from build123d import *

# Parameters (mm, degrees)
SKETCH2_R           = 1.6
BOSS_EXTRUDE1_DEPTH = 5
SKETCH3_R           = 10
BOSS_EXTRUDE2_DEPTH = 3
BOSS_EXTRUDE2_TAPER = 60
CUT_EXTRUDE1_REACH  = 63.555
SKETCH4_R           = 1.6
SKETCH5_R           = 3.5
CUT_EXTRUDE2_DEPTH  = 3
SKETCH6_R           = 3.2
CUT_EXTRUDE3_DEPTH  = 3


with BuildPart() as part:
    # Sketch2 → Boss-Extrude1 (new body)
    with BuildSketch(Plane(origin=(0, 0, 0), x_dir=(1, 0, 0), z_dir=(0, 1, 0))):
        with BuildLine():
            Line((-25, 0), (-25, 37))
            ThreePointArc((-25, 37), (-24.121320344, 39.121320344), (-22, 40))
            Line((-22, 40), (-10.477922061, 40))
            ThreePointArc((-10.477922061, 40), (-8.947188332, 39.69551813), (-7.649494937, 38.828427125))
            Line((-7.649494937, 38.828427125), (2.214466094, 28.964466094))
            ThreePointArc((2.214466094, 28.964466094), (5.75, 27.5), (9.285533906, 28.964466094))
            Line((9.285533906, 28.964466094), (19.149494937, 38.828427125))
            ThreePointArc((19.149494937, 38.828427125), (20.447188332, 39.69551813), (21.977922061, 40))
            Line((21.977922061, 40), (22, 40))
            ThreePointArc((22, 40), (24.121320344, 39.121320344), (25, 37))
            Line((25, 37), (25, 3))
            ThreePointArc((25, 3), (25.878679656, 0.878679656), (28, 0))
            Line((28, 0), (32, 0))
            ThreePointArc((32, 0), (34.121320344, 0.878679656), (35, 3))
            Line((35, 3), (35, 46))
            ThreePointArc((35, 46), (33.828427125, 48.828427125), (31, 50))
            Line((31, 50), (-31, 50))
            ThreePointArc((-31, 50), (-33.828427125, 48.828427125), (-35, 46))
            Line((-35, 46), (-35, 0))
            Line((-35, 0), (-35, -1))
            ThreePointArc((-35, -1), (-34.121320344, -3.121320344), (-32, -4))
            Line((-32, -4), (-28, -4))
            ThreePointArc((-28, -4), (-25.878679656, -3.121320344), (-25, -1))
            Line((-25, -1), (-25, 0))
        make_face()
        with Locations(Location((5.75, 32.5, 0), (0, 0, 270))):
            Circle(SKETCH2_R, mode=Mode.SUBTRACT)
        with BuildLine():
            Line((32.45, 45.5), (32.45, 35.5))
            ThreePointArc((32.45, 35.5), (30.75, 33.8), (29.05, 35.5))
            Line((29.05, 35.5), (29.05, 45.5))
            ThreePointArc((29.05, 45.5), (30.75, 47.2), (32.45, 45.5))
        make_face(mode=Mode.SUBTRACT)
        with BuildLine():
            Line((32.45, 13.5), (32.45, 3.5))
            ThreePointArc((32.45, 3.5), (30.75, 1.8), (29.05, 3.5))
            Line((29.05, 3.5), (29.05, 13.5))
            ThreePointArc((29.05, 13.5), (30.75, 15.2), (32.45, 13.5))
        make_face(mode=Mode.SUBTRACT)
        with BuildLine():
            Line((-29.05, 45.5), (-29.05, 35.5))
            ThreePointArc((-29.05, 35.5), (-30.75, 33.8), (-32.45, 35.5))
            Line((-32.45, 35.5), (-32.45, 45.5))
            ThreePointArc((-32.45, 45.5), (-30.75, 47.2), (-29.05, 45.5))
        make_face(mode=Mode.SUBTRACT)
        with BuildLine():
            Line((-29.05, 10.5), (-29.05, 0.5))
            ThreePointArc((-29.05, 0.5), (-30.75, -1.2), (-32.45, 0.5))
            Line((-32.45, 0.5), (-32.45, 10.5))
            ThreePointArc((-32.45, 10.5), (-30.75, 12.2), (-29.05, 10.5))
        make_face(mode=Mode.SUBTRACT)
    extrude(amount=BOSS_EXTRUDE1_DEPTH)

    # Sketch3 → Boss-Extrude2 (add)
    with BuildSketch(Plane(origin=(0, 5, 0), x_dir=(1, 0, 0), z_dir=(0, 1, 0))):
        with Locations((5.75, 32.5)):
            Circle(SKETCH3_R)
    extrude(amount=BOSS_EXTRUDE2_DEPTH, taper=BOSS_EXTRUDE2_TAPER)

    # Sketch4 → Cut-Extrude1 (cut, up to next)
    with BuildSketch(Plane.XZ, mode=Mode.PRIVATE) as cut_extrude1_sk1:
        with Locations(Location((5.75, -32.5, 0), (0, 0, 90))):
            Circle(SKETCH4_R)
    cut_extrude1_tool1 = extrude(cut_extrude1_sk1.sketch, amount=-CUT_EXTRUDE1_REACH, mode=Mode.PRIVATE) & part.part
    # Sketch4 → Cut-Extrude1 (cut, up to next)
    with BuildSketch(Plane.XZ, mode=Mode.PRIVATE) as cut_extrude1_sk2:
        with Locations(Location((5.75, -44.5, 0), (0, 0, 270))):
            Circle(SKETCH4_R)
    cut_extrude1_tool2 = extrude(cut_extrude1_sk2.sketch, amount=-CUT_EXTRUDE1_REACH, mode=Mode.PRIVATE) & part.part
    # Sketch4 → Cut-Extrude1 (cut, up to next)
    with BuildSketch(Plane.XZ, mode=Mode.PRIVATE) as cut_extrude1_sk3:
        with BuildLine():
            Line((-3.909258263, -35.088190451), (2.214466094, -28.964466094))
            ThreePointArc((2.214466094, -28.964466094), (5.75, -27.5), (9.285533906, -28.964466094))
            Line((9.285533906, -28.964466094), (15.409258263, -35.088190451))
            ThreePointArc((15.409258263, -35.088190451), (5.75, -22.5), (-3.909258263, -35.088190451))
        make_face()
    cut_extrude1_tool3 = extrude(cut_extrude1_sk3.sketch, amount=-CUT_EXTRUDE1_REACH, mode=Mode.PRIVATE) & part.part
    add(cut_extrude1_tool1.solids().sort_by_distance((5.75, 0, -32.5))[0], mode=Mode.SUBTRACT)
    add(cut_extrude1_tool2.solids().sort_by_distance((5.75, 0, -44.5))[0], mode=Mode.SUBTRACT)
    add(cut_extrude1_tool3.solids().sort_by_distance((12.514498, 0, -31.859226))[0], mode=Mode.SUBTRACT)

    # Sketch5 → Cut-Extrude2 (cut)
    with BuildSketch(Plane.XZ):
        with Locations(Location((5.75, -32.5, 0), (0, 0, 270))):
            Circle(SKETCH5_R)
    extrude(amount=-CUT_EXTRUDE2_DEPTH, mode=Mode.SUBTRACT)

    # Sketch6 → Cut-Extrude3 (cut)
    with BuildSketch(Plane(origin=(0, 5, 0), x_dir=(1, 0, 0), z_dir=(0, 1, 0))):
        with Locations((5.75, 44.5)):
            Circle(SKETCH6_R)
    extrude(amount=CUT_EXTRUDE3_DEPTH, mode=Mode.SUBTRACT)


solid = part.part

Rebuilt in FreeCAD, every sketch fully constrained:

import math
import FreeCAD as App
import Part
import Sketcher

V = App.Vector

doc = App.newDocument("Part")
body = doc.addObject("PartDesign::Body", "Body")

sketch1 = doc.addObject("Sketcher::SketchObject", "Sketch")
body.addObject(sketch1)
sketch1.AttachmentSupport = (doc.XZ_Plane, [""])
sketch1.MapMode = "FlatFace"
sketch1.addGeometry(Part.ArcOfCircle(Part.Circle(V(-22, -37, 0), V(0, 0, 1), 3), math.radians(180), math.radians(270)), False)
sketch1.addGeometry(Part.LineSegment(V(-22, -40, 0), V(-10.478, -40, 0)), False)
sketch1.addGeometry(Part.ArcOfCircle(Part.Circle(V(-10.478, -36, 0), V(0, 0, 1), 4), math.radians(-90), math.radians(-45)), False)
sketch1.addGeometry(Part.LineSegment(V(-7.649, -38.828, 0), V(2.214, -28.964, 0)), False)
sketch1.addGeometry(Part.ArcOfCircle(Part.Circle(V(5.75, -32.5, 0), V(0, 0, 1), 5), math.radians(45), math.radians(135)), False)
sketch1.addGeometry(Part.LineSegment(V(9.286, -28.964, 0), V(19.149, -38.828, 0)), False)
sketch1.addGeometry(Part.ArcOfCircle(Part.Circle(V(21.978, -36, 0), V(0, 0, 1), 4), math.radians(-135), math.radians(-90)), False)
sketch1.addGeometry(Part.LineSegment(V(21.978, -40, 0), V(22, -40, 0)), False)
sketch1.addGeometry(Part.ArcOfCircle(Part.Circle(V(22, -37, 0), V(0, 0, 1), 3), math.radians(-90), math.radians(0)), False)
sketch1.addGeometry(Part.LineSegment(V(25, -37, 0), V(25, -3, 0)), False)
sketch1.addGeometry(Part.ArcOfCircle(Part.Circle(V(28, -3, 0), V(0, 0, 1), 3), math.radians(90), math.radians(180)), False)
sketch1.addGeometry(Part.LineSegment(V(28, 0, 0), V(32, 0, 0)), False)
sketch1.addGeometry(Part.ArcOfCircle(Part.Circle(V(32, -3, 0), V(0, 0, 1), 3), math.radians(0), math.radians(90)), False)
sketch1.addGeometry(Part.LineSegment(V(35, -3, 0), V(35, -46, 0)), False)
sketch1.addGeometry(Part.ArcOfCircle(Part.Circle(V(31, -46, 0), V(0, 0, 1), 4), math.radians(-90), math.radians(0)), False)
sketch1.addGeometry(Part.LineSegment(V(31, -50, 0), V(-31, -50, 0)), False)
sketch1.addGeometry(Part.ArcOfCircle(Part.Circle(V(-31, -46, 0), V(0, 0, 1), 4), math.radians(180), math.radians(270)), False)
sketch1.addGeometry(Part.LineSegment(V(-35, -46, 0), V(-35, 1, 0)), False)
sketch1.addGeometry(Part.ArcOfCircle(Part.Circle(V(-32, 1, 0), V(0, 0, 1), 3), math.radians(90), math.radians(180)), False)
sketch1.addGeometry(Part.LineSegment(V(-32, 4, 0), V(-28, 4, 0)), False)
sketch1.addGeometry(Part.ArcOfCircle(Part.Circle(V(-28, 1, 0), V(0, 0, 1), 3), math.radians(0), math.radians(90)), False)
sketch1.addGeometry(Part.LineSegment(V(-25, 1, 0), V(-25, -37, 0)), False)
sketch1.addGeometry(Part.ArcOfCircle(Part.Circle(V(-30.75, -10.5, 0), V(0, 0, 1), 1.7), math.radians(180), math.radians(360)), False)
sketch1.addGeometry(Part.LineSegment(V(-29.05, -10.5, 0), V(-29.05, -0.5, 0)), False)
sketch1.addGeometry(Part.ArcOfCircle(Part.Circle(V(-30.75, -0.5, 0), V(0, 0, 1), 1.7), math.radians(0), math.radians(180)), False)
sketch1.addGeometry(Part.LineSegment(V(-32.45, -0.5, 0), V(-32.45, -10.5, 0)), False)
sketch1.addGeometry(Part.ArcOfCircle(Part.Circle(V(30.75, -13.5, 0), V(0, 0, 1), 1.7), math.radians(180), math.radians(360)), False)
sketch1.addGeometry(Part.LineSegment(V(32.45, -13.5, 0), V(32.45, -3.5, 0)), False)
sketch1.addGeometry(Part.ArcOfCircle(Part.Circle(V(30.75, -3.5, 0), V(0, 0, 1), 1.7), math.radians(0), math.radians(180)), False)
sketch1.addGeometry(Part.LineSegment(V(29.05, -3.5, 0), V(29.05, -13.5, 0)), False)
sketch1.addGeometry(Part.ArcOfCircle(Part.Circle(V(-30.75, -45.5, 0), V(0, 0, 1), 1.7), math.radians(180), math.radians(360)), False)
sketch1.addGeometry(Part.LineSegment(V(-29.05, -45.5, 0), V(-29.05, -35.5, 0)), False)
sketch1.addGeometry(Part.ArcOfCircle(Part.Circle(V(-30.75, -35.5, 0), V(0, 0, 1), 1.7), math.radians(0), math.radians(180)), False)
sketch1.addGeometry(Part.LineSegment(V(-32.45, -35.5, 0), V(-32.45, -45.5, 0)), False)
sketch1.addGeometry(Part.Circle(V(5.75, -32.5, 0), V(0, 0, 1), 1.6), False)
sketch1.addGeometry(Part.ArcOfCircle(Part.Circle(V(30.75, -45.5, 0), V(0, 0, 1), 1.7), math.radians(180), math.radians(360)), False)
sketch1.addGeometry(Part.LineSegment(V(32.45, -45.5, 0), V(32.45, -35.5, 0)), False)
sketch1.addGeometry(Part.ArcOfCircle(Part.Circle(V(30.75, -35.5, 0), V(0, 0, 1), 1.7), math.radians(0), math.radians(180)), False)
sketch1.addGeometry(Part.LineSegment(V(29.05, -35.5, 0), V(29.05, -45.5, 0)), False)
sketch1.addConstraint(Sketcher.Constraint("Tangent", 0, 2, 1, 1))
sketch1.addConstraint(Sketcher.Constraint("Tangent", 1, 2, 2, 1))
sketch1.addConstraint(Sketcher.Constraint("Tangent", 2, 2, 3, 1))
sketch1.addConstraint(Sketcher.Constraint("Tangent", 3, 2, 4, 2))
sketch1.addConstraint(Sketcher.Constraint("Tangent", 4, 1, 5, 1))
sketch1.addConstraint(Sketcher.Constraint("Tangent", 5, 2, 6, 1))
sketch1.addConstraint(Sketcher.Constraint("Tangent", 6, 2, 7, 1))
sketch1.addConstraint(Sketcher.Constraint("Tangent", 7, 2, 8, 1))
sketch1.addConstraint(Sketcher.Constraint("Tangent", 8, 2, 9, 1))
sketch1.addConstraint(Sketcher.Constraint("Tangent", 9, 2, 10, 2))
sketch1.addConstraint(Sketcher.Constraint("Tangent", 10, 1, 11, 1))
sketch1.addConstraint(Sketcher.Constraint("Tangent", 11, 2, 12, 2))
sketch1.addConstraint(Sketcher.Constraint("Tangent", 12, 1, 13, 1))
sketch1.addConstraint(Sketcher.Constraint("Tangent", 13, 2, 14, 2))
sketch1.addConstraint(Sketcher.Constraint("Tangent", 14, 1, 15, 1))
sketch1.addConstraint(Sketcher.Constraint("Tangent", 15, 2, 16, 2))
sketch1.addConstraint(Sketcher.Constraint("Tangent", 16, 1, 17, 1))
sketch1.addConstraint(Sketcher.Constraint("Tangent", 17, 2, 18, 2))
sketch1.addConstraint(Sketcher.Constraint("Tangent", 18, 1, 19, 1))
sketch1.addConstraint(Sketcher.Constraint("Tangent", 19, 2, 20, 2))
sketch1.addConstraint(Sketcher.Constraint("Tangent", 20, 1, 21, 1))
sketch1.addConstraint(Sketcher.Constraint("Tangent", 21, 2, 0, 1))
sketch1.addConstraint(Sketcher.Constraint("Tangent", 22, 2, 23, 1))
sketch1.addConstraint(Sketcher.Constraint("Tangent", 23, 2, 24, 1))
sketch1.addConstraint(Sketcher.Constraint("Tangent", 24, 2, 25, 1))
sketch1.addConstraint(Sketcher.Constraint("Tangent", 25, 2, 22, 1))
sketch1.addConstraint(Sketcher.Constraint("Tangent", 26, 2, 27, 1))
sketch1.addConstraint(Sketcher.Constraint("Tangent", 27, 2, 28, 1))
sketch1.addConstraint(Sketcher.Constraint("Tangent", 28, 2, 29, 1))
sketch1.addConstraint(Sketcher.Constraint("Tangent", 29, 2, 26, 1))
sketch1.addConstraint(Sketcher.Constraint("Tangent", 30, 2, 31, 1))
sketch1.addConstraint(Sketcher.Constraint("Tangent", 31, 2, 32, 1))
sketch1.addConstraint(Sketcher.Constraint("Tangent", 32, 2, 33, 1))
sketch1.addConstraint(Sketcher.Constraint("Tangent", 33, 2, 30, 1))
sketch1.addConstraint(Sketcher.Constraint("Tangent", 35, 2, 36, 1))
sketch1.addConstraint(Sketcher.Constraint("Tangent", 36, 2, 37, 1))
sketch1.addConstraint(Sketcher.Constraint("Tangent", 37, 2, 38, 1))
sketch1.addConstraint(Sketcher.Constraint("Tangent", 38, 2, 35, 1))
sketch1.addConstraint(Sketcher.Constraint("Horizontal", 1))
sketch1.addConstraint(Sketcher.Constraint("Horizontal", 7))
sketch1.addConstraint(Sketcher.Constraint("Vertical", 9))
sketch1.addConstraint(Sketcher.Constraint("Horizontal", 11))
sketch1.addConstraint(Sketcher.Constraint("Vertical", 13))
sketch1.addConstraint(Sketcher.Constraint("Horizontal", 15))
sketch1.addConstraint(Sketcher.Constraint("Vertical", 17))
sketch1.addConstraint(Sketcher.Constraint("Horizontal", 19))
sketch1.addConstraint(Sketcher.Constraint("Vertical", 21))
sketch1.addConstraint(Sketcher.Constraint("Vertical", 23))
sketch1.addConstraint(Sketcher.Constraint("Vertical", 25))
sketch1.addConstraint(Sketcher.Constraint("Vertical", 27))
sketch1.addConstraint(Sketcher.Constraint("Vertical", 29))
sketch1.addConstraint(Sketcher.Constraint("Vertical", 31))
sketch1.addConstraint(Sketcher.Constraint("Vertical", 33))
sketch1.addConstraint(Sketcher.Constraint("Vertical", 36))
sketch1.addConstraint(Sketcher.Constraint("Vertical", 38))
sketch1.addConstraint(Sketcher.Constraint("Coincident", 34, 3, 4, 3))
sketch1.addConstraint(Sketcher.Constraint("Equal", 2, 6))
sketch1.addConstraint(Sketcher.Constraint("Equal", 0, 8))
sketch1.addConstraint(Sketcher.Constraint("Equal", 8, 10))
sketch1.addConstraint(Sketcher.Constraint("Equal", 10, 12))
sketch1.addConstraint(Sketcher.Constraint("Equal", 6, 14))
sketch1.addConstraint(Sketcher.Constraint("Equal", 14, 16))
sketch1.addConstraint(Sketcher.Constraint("Equal", 12, 18))
sketch1.addConstraint(Sketcher.Constraint("Equal", 18, 20))
sketch1.addConstraint(Sketcher.Constraint("Equal", 24, 26))
sketch1.addConstraint(Sketcher.Constraint("Equal", 28, 30))
sketch1.addConstraint(Sketcher.Constraint("Equal", 32, 35))
sketch1.addConstraint(Sketcher.Constraint("Symmetric", 0, 3, 8, 3, -2))
sketch1.addConstraint(Sketcher.Constraint("Symmetric", 30, 3, 35, 3, -2))
sketch1.addConstraint(Sketcher.Constraint("PointOnObject", 10, 1, -1))
sketch1.addConstraint(Sketcher.Constraint("Perpendicular", 3, 5))
sketch1.addConstraint(Sketcher.Constraint("Horizontal", 32, 3, 37, 3))
sketch1.addConstraint(Sketcher.Constraint("Horizontal", 3, 2, 4, 1))
sketch1.addConstraint(Sketcher.Constraint("Vertical", 24, 3, 30, 3))
sketch1.addConstraint(Sketcher.Constraint("Vertical", 28, 3, 35, 3))
sketch1.addConstraint(Sketcher.Constraint("Equal", 11, 19))
sketch1.addConstraint(Sketcher.Constraint("Equal", 25, 27))
sketch1.addConstraint(Sketcher.Constraint("Equal", 29, 31))
sketch1.addConstraint(Sketcher.Constraint("Radius", 0, 3.0))
sketch1.addConstraint(Sketcher.Constraint("Radius", 2, 4.0))
sketch1.addConstraint(Sketcher.Constraint("Radius", 4, 5.0))
sketch1.addConstraint(Sketcher.Constraint("Diameter", 34, 3.2))
sketch1.addConstraint(Sketcher.Constraint("Radius", 22, 1.7))
sketch1.addConstraint(Sketcher.Constraint("DistanceX", 11, 1, 11, 2, 4.0))
sketch1.addConstraint(Sketcher.Constraint("DistanceX", 15, 2, 15, 1, 62.0))
sketch1.addConstraint(Sketcher.Constraint("DistanceY", 9, 1, 9, 2, 34.0))
sketch1.addConstraint(Sketcher.Constraint("DistanceY", 13, 2, 13, 1, 43.0))
sketch1.addConstraint(Sketcher.Constraint("DistanceY", 17, 1, 17, 2, 47.0))
sketch1.addConstraint(Sketcher.Constraint("DistanceY", 23, 1, 23, 2, 10.0))
sketch1.addConstraint(Sketcher.Constraint("DistanceX", 4, 3, 26, 3, 25.0))
sketch1.addConstraint(Sketcher.Constraint("DistanceY", 4, 3, 26, 3, 19.0))
sketch1.addConstraint(Sketcher.Constraint("DistanceY", 30, 3, 22, 3, 35.0))
sketch1.addConstraint(Sketcher.Constraint("DistanceY", 30, 3, 4, 3, 13.0))
sketch1.addConstraint(Sketcher.Constraint("DistanceY", 4, 3, -1, 1, 32.5))
sketch1.addConstraint(Sketcher.Constraint("DistanceX", 30, 3, 4, 3, 36.5))
pad1 = doc.addObject("PartDesign::Pad", "Pad")
body.addObject(pad1)
pad1.Profile = sketch1
pad1.Length = 5
pad1.Reversed = True

sketch2 = doc.addObject("Sketcher::SketchObject", "Sketch001")
body.addObject(sketch2)
sketch2.AttachmentSupport = (doc.XZ_Plane, [""])
sketch2.MapMode = "FlatFace"
sketch2.AttachmentOffset = App.Placement(V(0, 0, -5), App.Rotation())
sketch2.addGeometry(Part.Circle(V(6, -32, 0), V(0, 0, 1), 10), False)
sketch2.addConstraint(Sketcher.Constraint("Diameter", 0, 20.0))
sketch2.addConstraint(Sketcher.Constraint("DistanceY", 0, 3, -1, 1, 32.5))
sketch2.addConstraint(Sketcher.Constraint("DistanceX", -1, 1, 0, 3, 5.75))
pad2 = doc.addObject("PartDesign::Pad", "Pad001")
body.addObject(pad2)
pad2.Profile = sketch2
pad2.Length = 3
pad2.Reversed = True
pad2.TaperAngle = -60

sketch3 = doc.addObject("Sketcher::SketchObject", "Sketch002")
body.addObject(sketch3)
sketch3.AttachmentSupport = (doc.XZ_Plane, [""])
sketch3.MapMode = "FlatFace"
sketch3.addGeometry(Part.Circle(V(5.8, -32.5, 0), V(0, 0, 1), 1.6), False)
sketch3.addConstraint(Sketcher.Constraint("Diameter", 0, 3.2))
sketch3.addConstraint(Sketcher.Constraint("DistanceY", 0, 3, -1, 1, 32.5))
sketch3.addConstraint(Sketcher.Constraint("DistanceX", -1, 1, 0, 3, 5.75))
pocket1 = doc.addObject("PartDesign::Pocket", "Pocket")
body.addObject(pocket1)
pocket1.Profile = sketch3
pocket1.Length = 8

sketch4 = doc.addObject("Sketcher::SketchObject", "Sketch003")
body.addObject(sketch4)
sketch4.AttachmentSupport = (doc.XZ_Plane, [""])
sketch4.MapMode = "FlatFace"
sketch4.addGeometry(Part.Circle(V(5.8, -44.5, 0), V(0, 0, 1), 1.6), False)
sketch4.addConstraint(Sketcher.Constraint("Diameter", 0, 3.2))
sketch4.addConstraint(Sketcher.Constraint("DistanceY", 0, 3, -1, 1, 44.5))
sketch4.addConstraint(Sketcher.Constraint("DistanceX", -1, 1, 0, 3, 5.75))
pocket2 = doc.addObject("PartDesign::Pocket", "Pocket001")
body.addObject(pocket2)
pocket2.Profile = sketch4
pocket2.Type = "UpToFirst"

sketch5 = doc.addObject("Sketcher::SketchObject", "Sketch004")
body.addObject(sketch5)
sketch5.AttachmentSupport = (doc.XZ_Plane, [""])
sketch5.MapMode = "FlatFace"
sketch5.addGeometry(Part.LineSegment(V(-4, -35, 0), V(2, -29, 0)), False)
sketch5.addGeometry(Part.ArcOfCircle(Part.Circle(V(6, -32, 0), V(0, 0, 1), 5), math.radians(45), math.radians(135)), False)
sketch5.addGeometry(Part.LineSegment(V(9, -29, 0), V(15, -35, 0)), False)
sketch5.addGeometry(Part.ArcOfCircle(Part.Circle(V(6, -32, 0), V(0, 0, 1), 10), math.radians(-15), math.radians(195)), False)
sketch5.addConstraint(Sketcher.Constraint("Tangent", 0, 2, 1, 2))
sketch5.addConstraint(Sketcher.Constraint("Tangent", 1, 1, 2, 1))
sketch5.addConstraint(Sketcher.Constraint("Coincident", 2, 2, 3, 1))
sketch5.addConstraint(Sketcher.Constraint("Coincident", 3, 2, 0, 1))
sketch5.addConstraint(Sketcher.Constraint("Coincident", 3, 3, 1, 3))
sketch5.addConstraint(Sketcher.Constraint("Perpendicular", 0, 2))
sketch5.addConstraint(Sketcher.Constraint("Horizontal", 0, 2, 1, 1))
sketch5.addConstraint(Sketcher.Constraint("Radius", 1, 5.0))
sketch5.addConstraint(Sketcher.Constraint("Radius", 3, 10.0))
sketch5.addConstraint(Sketcher.Constraint("DistanceY", 1, 3, -1, 1, 32.5))
sketch5.addConstraint(Sketcher.Constraint("DistanceX", -1, 1, 1, 3, 5.75))
pocket3 = doc.addObject("PartDesign::Pocket", "Pocket002")
body.addObject(pocket3)
pocket3.Profile = sketch5
pocket3.Type = "UpToFirst"

sketch6 = doc.addObject("Sketcher::SketchObject", "Sketch005")
body.addObject(sketch6)
sketch6.AttachmentSupport = (doc.XZ_Plane, [""])
sketch6.MapMode = "FlatFace"
sketch6.addGeometry(Part.Circle(V(5.8, -32.5, 0), V(0, 0, 1), 3.5), False)
sketch6.addConstraint(Sketcher.Constraint("Diameter", 0, 7.0))
sketch6.addConstraint(Sketcher.Constraint("DistanceY", 0, 3, -1, 1, 32.5))
sketch6.addConstraint(Sketcher.Constraint("DistanceX", -1, 1, 0, 3, 5.75))
pocket4 = doc.addObject("PartDesign::Pocket", "Pocket003")
body.addObject(pocket4)
pocket4.Profile = sketch6
pocket4.Length = 3

sketch7 = doc.addObject("Sketcher::SketchObject", "Sketch006")
body.addObject(sketch7)
sketch7.AttachmentSupport = (doc.XZ_Plane, [""])
sketch7.MapMode = "FlatFace"
sketch7.AttachmentOffset = App.Placement(V(0, 0, -5), App.Rotation())
sketch7.addGeometry(Part.Circle(V(5.8, -44.5, 0), V(0, 0, 1), 3.2), False)
sketch7.addConstraint(Sketcher.Constraint("Diameter", 0, 6.4))
sketch7.addConstraint(Sketcher.Constraint("DistanceY", 0, 3, -1, 1, 44.5))
sketch7.addConstraint(Sketcher.Constraint("DistanceX", -1, 1, 0, 3, 5.75))
pocket5 = doc.addObject("PartDesign::Pocket", "Pocket004")
body.addObject(pocket5)
pocket5.Profile = sketch7
pocket5.Length = 3

doc.recompute()
